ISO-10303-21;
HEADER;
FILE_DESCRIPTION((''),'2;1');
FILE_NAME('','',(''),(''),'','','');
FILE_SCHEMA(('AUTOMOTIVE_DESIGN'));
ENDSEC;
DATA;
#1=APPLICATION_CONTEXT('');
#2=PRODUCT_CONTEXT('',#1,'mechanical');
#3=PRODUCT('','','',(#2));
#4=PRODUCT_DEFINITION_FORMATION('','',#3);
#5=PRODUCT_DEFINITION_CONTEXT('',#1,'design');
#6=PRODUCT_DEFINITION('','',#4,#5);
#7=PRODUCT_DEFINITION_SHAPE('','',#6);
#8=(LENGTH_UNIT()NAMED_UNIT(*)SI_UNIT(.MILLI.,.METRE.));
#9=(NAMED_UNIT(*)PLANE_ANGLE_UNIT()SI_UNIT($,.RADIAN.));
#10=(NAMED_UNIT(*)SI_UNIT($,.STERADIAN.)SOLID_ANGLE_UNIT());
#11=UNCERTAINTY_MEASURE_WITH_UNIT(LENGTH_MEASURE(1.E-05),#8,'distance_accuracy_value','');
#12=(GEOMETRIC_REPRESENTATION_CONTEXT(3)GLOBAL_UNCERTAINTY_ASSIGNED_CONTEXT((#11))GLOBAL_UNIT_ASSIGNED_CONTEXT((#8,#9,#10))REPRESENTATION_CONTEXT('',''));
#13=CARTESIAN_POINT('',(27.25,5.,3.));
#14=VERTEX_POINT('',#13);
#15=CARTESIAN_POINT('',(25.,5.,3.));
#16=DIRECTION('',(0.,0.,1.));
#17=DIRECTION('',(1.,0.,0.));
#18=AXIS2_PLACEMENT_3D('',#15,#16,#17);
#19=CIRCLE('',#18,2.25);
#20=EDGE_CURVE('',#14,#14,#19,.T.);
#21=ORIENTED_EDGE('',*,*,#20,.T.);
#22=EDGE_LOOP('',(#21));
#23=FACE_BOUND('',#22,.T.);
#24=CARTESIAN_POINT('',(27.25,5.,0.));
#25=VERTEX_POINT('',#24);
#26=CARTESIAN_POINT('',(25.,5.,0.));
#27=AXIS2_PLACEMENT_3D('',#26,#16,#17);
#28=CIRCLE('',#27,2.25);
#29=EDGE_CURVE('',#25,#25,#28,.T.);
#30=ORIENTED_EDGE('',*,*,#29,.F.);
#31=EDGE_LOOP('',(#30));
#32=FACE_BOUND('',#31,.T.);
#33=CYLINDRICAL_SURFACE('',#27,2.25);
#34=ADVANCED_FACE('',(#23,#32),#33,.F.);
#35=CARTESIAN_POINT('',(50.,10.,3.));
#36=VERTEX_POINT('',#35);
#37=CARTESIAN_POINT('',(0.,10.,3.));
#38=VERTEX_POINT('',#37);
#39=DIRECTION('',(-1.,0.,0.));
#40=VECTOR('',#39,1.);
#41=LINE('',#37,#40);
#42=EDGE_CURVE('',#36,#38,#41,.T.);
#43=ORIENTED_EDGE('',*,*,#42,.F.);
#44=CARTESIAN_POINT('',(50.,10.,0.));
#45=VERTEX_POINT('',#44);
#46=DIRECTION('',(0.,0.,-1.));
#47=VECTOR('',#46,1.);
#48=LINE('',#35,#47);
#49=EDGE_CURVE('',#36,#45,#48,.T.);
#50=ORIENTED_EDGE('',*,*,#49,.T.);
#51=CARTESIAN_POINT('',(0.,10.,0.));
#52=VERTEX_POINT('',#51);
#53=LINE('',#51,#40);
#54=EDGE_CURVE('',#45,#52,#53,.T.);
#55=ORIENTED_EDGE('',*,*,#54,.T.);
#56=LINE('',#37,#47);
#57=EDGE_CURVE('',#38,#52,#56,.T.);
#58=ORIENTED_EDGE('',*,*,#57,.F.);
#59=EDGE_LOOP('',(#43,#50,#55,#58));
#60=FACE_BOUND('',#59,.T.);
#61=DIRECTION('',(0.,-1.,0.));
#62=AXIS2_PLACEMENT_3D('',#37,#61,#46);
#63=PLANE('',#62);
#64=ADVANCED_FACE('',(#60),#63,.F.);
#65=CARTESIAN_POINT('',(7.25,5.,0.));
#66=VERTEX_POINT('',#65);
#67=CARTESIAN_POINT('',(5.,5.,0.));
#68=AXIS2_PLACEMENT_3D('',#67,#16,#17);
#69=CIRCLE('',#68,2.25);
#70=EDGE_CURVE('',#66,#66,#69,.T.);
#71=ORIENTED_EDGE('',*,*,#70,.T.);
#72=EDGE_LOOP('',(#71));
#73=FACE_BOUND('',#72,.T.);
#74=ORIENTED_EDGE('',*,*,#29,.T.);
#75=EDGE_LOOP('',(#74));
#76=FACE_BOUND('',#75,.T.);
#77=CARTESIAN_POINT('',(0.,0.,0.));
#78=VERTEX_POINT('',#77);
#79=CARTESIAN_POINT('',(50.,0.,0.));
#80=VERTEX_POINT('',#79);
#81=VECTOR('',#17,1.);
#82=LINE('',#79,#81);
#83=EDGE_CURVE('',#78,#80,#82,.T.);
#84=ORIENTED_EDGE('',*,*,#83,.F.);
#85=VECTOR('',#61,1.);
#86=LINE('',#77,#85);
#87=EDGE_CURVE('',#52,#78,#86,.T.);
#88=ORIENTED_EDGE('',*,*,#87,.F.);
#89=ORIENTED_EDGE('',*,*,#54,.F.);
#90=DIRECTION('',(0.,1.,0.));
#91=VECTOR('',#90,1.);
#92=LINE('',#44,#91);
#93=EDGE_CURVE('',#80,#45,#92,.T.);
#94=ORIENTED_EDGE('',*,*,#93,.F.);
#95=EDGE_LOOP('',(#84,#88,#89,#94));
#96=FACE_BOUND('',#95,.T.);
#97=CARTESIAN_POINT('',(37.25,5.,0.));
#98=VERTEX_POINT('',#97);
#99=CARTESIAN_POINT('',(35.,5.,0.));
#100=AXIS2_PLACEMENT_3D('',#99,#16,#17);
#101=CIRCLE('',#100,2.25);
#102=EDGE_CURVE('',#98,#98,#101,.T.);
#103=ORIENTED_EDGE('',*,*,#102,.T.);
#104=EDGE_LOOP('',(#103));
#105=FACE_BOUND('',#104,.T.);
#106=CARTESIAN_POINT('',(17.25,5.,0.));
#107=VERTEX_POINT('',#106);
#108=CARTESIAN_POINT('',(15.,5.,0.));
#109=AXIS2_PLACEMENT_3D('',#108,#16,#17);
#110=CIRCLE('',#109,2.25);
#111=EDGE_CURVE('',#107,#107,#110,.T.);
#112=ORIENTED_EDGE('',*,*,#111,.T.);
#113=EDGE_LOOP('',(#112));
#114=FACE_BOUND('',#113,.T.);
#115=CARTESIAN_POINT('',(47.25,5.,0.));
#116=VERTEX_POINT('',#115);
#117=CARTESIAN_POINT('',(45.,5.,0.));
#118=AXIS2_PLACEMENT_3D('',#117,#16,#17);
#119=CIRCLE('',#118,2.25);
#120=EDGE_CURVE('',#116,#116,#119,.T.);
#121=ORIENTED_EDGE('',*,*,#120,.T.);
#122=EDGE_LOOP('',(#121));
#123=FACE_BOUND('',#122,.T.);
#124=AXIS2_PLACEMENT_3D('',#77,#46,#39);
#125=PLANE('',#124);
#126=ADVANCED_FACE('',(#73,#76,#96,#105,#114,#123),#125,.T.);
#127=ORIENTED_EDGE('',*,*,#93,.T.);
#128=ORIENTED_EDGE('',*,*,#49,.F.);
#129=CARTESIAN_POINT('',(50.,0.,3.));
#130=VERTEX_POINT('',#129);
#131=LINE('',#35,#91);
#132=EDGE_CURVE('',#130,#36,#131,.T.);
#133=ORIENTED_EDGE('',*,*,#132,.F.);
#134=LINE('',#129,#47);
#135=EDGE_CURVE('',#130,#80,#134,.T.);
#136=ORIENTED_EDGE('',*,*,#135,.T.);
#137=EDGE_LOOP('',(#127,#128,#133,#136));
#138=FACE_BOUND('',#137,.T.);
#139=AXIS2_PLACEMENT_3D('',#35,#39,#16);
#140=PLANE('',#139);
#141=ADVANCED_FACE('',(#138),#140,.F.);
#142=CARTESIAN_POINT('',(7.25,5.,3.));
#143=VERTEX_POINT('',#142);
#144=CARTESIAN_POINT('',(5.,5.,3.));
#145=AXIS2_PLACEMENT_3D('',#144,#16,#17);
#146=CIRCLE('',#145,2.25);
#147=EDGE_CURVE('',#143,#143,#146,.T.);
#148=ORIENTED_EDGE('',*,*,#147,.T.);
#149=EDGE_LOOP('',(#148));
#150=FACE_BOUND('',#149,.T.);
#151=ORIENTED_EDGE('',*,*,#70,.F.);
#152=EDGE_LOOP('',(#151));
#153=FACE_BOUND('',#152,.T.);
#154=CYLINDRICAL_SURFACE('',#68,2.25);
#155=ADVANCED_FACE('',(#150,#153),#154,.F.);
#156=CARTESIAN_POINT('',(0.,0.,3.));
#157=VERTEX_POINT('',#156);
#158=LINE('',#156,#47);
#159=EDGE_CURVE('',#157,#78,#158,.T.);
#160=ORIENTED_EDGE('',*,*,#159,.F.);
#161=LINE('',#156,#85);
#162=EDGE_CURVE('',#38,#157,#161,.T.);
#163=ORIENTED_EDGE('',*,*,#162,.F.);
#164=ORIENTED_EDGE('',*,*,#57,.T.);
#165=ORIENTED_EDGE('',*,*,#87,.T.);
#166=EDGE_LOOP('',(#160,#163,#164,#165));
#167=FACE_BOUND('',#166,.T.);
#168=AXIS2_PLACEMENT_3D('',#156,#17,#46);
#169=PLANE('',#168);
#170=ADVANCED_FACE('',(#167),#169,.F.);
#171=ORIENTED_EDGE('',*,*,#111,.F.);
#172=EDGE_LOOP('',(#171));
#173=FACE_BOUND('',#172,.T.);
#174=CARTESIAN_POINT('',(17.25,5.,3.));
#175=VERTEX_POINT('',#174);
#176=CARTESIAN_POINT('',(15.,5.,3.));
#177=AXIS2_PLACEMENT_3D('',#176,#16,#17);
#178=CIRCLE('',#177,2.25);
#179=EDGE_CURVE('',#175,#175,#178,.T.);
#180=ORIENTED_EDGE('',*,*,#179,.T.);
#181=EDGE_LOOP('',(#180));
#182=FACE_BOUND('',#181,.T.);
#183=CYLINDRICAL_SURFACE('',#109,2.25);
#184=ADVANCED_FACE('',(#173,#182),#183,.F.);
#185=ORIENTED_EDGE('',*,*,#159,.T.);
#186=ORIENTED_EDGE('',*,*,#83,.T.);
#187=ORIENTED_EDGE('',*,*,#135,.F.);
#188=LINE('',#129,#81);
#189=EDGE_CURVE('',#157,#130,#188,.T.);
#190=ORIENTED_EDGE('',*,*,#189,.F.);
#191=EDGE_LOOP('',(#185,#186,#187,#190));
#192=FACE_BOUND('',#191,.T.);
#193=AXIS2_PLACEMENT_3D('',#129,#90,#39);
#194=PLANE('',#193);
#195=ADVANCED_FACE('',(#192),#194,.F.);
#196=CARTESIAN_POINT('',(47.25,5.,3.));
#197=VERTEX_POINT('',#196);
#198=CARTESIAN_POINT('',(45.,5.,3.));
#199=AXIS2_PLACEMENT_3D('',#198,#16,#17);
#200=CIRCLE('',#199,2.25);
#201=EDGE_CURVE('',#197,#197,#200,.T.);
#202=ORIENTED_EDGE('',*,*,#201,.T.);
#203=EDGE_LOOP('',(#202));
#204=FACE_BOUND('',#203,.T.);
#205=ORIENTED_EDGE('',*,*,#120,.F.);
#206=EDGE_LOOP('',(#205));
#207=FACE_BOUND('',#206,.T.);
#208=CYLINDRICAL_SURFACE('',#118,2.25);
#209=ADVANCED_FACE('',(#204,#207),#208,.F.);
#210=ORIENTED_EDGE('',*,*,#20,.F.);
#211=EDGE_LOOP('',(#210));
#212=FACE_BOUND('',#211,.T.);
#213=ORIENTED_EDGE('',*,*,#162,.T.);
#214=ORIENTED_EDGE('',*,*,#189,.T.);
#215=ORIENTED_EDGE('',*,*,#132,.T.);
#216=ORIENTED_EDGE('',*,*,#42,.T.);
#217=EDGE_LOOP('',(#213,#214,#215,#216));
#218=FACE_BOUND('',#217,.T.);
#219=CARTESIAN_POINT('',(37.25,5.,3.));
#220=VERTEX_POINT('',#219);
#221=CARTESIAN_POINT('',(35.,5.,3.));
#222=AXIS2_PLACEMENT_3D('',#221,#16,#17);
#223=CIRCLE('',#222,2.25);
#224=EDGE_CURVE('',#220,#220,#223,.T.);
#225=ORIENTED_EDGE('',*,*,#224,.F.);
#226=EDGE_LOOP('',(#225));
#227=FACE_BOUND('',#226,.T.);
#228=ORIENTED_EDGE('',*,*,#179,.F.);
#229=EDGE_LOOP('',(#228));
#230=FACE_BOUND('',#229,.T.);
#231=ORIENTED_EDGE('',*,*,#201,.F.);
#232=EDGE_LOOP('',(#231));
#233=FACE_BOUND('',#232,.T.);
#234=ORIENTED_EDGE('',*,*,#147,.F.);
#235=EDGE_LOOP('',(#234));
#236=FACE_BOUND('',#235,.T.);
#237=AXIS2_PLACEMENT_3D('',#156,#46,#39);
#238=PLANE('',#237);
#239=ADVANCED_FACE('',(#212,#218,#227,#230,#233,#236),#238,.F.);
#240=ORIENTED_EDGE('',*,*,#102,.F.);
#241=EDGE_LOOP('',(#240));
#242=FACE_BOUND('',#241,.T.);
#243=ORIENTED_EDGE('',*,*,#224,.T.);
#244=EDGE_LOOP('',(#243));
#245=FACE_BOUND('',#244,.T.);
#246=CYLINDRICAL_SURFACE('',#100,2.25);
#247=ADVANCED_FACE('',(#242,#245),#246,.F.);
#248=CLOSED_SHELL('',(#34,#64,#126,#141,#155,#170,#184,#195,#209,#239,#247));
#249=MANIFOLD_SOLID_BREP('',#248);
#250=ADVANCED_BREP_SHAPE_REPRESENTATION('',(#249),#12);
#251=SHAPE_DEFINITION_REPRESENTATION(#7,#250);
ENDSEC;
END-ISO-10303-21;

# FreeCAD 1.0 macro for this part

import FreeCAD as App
import Part
import Sketcher

doc = App.newDocument("Part")
body = doc.addObject("PartDesign::Body", "Body")

sketch1 = body.newObject("Sketcher::SketchObject", "Sketch")
sketch1.AttachmentSupport = (doc.getObject("XY_Plane"), [""])
sketch1.MapMode = "FlatFace"
sketch1.addGeometry([
    Part.LineSegment(App.Vector(0, 10, 0), App.Vector(0, 0, 0)),
    Part.LineSegment(App.Vector(0, 0, 0), App.Vector(50, 0, 0)),
    Part.LineSegment(App.Vector(50, 0, 0), App.Vector(50, 10, 0)),
    Part.LineSegment(App.Vector(50, 10, 0), App.Vector(0, 10, 0)),
], False)
sketch1.addConstraint([
    Sketcher.Constraint("Coincident", 0, 2, 1, 1),
    Sketcher.Constraint("Coincident", 1, 2, 2, 1),
    Sketcher.Constraint("Coincident", 2, 2, 3, 1),
    Sketcher.Constraint("Coincident", 3, 2, 0, 1),
    Sketcher.Constraint("Vertical", 0),
    Sketcher.Constraint("Horizontal", 1),
    Sketcher.Constraint("Vertical", 2),
    Sketcher.Constraint("Horizontal", 3),
    Sketcher.Constraint("Coincident", 0, 2, -1, 1),
    Sketcher.Constraint("DistanceX", 1, 1, 1, 2, 50.0),
    Sketcher.Constraint("DistanceY", 0, 2, 0, 1, 10.0),
])
pad1 = body.newObject("PartDesign::Pad", "Pad")
pad1.Profile = sketch1
pad1.Length = 3

sketch2 = body.newObject("Sketcher::SketchObject", "Sketch001")
sketch2.AttachmentSupport = (doc.getObject("XY_Plane"), [""])
sketch2.MapMode = "FlatFace"
sketch2.AttachmentOffset = App.Placement(App.Vector(0, 0, 3), App.Rotation())
sketch2.addGeometry([
    Part.Circle(App.Vector(5, 5, 0), App.Vector(0, 0, 1), 2.2),
    Part.Circle(App.Vector(15, 5, 0), App.Vector(0, 0, 1), 2.2),
    Part.Circle(App.Vector(25, 5, 0), App.Vector(0, 0, 1), 2.2),
    Part.Circle(App.Vector(35, 5, 0), App.Vector(0, 0, 1), 2.2),
    Part.Circle(App.Vector(45, 5, 0), App.Vector(0, 0, 1), 2.2),
], False)
sketch2.addConstraint([
    Sketcher.Constraint("Equal", 0, 1),
    Sketcher.Constraint("Equal", 1, 2),
    Sketcher.Constraint("Equal", 2, 3),
    Sketcher.Constraint("Equal", 3, 4),
    Sketcher.Constraint("Horizontal", 0, 3, 1, 3),
    Sketcher.Constraint("Horizontal", 1, 3, 2, 3),
    Sketcher.Constraint("Horizontal", 2, 3, 3, 3),
    Sketcher.Constraint("Horizontal", 3, 3, 4, 3),
    Sketcher.Constraint("Diameter", 0, 4.5),
    Sketcher.Constraint("DistanceX", -1, 1, 0, 3, 5.0),
    Sketcher.Constraint("DistanceY", -1, 1, 0, 3, 5.0),
    Sketcher.Constraint("DistanceX", -1, 1, 1, 3, 15.0),
    Sketcher.Constraint("DistanceX", -1, 1, 2, 3, 25.0),
    Sketcher.Constraint("DistanceX", -1, 1, 3, 3, 35.0),
    Sketcher.Constraint("DistanceX", -1, 1, 4, 3, 45.0),
])
pocket1 = body.newObject("PartDesign::Pocket", "Pocket")
pocket1.Profile = sketch2
pocket1.Type = "ThroughAll"

doc.recompute()
